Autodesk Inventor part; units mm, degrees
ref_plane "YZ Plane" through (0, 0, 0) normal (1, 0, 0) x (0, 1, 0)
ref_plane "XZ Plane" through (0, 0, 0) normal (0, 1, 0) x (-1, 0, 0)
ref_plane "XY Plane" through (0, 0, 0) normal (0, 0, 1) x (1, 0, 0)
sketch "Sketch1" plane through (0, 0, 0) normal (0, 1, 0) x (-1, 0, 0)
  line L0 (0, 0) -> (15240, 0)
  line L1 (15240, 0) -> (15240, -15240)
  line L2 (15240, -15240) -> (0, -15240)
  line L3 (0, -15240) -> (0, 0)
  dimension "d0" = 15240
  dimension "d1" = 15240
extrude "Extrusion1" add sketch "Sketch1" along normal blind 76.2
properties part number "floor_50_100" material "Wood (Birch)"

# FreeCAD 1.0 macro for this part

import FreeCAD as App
import Part
import Sketcher
Q = App.Units.Quantity

doc = App.newDocument("Part")
body = doc.addObject("PartDesign::Body", "Body")

sketch1 = doc.addObject("Sketcher::SketchObject", "Sketch")
body.addObject(sketch1)
sketch1.AttachmentSupport = (doc.XZ_Plane, [""])
sketch1.MapMode = "FlatFace"
sketch1.addGeometry([
    Part.LineSegment(App.Vector(-15240, 0, 0), App.Vector(0, 0, 0)),
    Part.LineSegment(App.Vector(0, 0, 0), App.Vector(0, -15240, 0)),
    Part.LineSegment(App.Vector(0, -15240, 0), App.Vector(-15240, -15240, 0)),
    Part.LineSegment(App.Vector(-15240, -15240, 0), App.Vector(-15240, 0, 0)),
], False)
sketch1.addConstraint([
    Sketcher.Constraint("Coincident", 0, 2, 1, 1),
    Sketcher.Constraint("Coincident", 1, 2, 2, 1),
    Sketcher.Constraint("Coincident", 2, 2, 3, 1),
    Sketcher.Constraint("Coincident", 3, 2, 0, 1),
    Sketcher.Constraint("Horizontal", 0),
    Sketcher.Constraint("Vertical", 1),
    Sketcher.Constraint("Horizontal", 2),
    Sketcher.Constraint("Vertical", 3),
    Sketcher.Constraint("Coincident", 0, 2, -1, 1),
    Sketcher.Constraint("Equal", 2, 1),
    Sketcher.Constraint("DistanceX", 0, 1, 0, 2, Q("600 in")),
])
pad1 = doc.addObject("PartDesign::Pad", "Pad")
body.addObject(pad1)
pad1.Profile = sketch1
pad1.Length = Q("3 in")
pad1.Reversed = True

doc.recompute()
